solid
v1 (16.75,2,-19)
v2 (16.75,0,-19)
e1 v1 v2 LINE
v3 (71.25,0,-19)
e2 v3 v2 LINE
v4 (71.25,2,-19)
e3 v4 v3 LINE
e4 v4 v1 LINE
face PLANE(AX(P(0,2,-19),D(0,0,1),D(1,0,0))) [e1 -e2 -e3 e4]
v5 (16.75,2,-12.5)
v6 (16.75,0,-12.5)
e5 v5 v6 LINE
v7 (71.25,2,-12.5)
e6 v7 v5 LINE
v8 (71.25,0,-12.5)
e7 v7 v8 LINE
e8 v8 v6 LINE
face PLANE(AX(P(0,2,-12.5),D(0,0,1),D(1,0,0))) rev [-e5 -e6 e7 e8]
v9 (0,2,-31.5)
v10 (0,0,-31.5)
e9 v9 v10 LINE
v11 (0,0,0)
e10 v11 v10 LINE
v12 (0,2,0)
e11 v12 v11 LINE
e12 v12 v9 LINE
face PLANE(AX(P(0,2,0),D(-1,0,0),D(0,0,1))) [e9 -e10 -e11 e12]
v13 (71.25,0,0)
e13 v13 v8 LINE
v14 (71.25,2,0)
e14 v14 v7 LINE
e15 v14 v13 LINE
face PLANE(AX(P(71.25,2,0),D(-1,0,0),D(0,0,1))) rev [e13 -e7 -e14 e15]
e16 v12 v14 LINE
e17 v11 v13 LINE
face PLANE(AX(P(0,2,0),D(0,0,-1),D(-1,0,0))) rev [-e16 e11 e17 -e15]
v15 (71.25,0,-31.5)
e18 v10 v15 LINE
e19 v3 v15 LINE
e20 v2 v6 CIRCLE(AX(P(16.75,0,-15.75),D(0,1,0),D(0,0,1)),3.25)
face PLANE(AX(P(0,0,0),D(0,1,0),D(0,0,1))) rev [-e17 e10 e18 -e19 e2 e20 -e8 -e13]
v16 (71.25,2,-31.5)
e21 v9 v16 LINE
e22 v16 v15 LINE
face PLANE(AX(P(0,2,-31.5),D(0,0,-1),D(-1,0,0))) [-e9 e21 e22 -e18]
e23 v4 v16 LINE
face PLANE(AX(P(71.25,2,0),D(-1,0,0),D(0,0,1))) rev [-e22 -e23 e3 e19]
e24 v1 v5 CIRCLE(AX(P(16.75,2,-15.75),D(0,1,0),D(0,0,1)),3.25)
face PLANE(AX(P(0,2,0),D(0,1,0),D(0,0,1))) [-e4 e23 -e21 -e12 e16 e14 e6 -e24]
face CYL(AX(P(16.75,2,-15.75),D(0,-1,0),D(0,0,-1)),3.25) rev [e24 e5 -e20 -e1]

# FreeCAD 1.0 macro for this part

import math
import FreeCAD as App
import Part
import Sketcher
from FreeCAD import Vector
Q = App.Units.Quantity

doc = App.newDocument("Part")
body = doc.addObject("PartDesign::Body", "Body")

# Sketch on XZ plane
sketch1 = body.newObject("Sketcher::SketchObject", "Sketch")
sketch1.AttachmentSupport = (doc.getObject("XZ_Plane"), [""])
sketch1.MapMode = "FlatFace"
sketch1.addGeometry([
    Part.LineSegment(Vector(0, -31.5, 0), Vector(0, 0, 0)),  # 0
    Part.LineSegment(Vector(0, 0, 0), Vector(71.25, 0, 0)),  # 1
    Part.LineSegment(Vector(71.25, 0, 0), Vector(71.25, -12.5, 0)),  # 2
    Part.LineSegment(Vector(71.25, -12.5, 0), Vector(16.75, -12.5, 0)),  # 3
    Part.ArcOfCircle(Part.Circle(Vector(16.75, -15.75, 0), Vector(0, 0, 1), 3.25), math.radians(90), math.radians(270)),  # 4
    Part.LineSegment(Vector(16.75, -19, 0), Vector(71.25, -19, 0)),  # 5
    Part.LineSegment(Vector(71.25, -19, 0), Vector(71.25, -31.5, 0)),  # 6
    Part.LineSegment(Vector(71.25, -31.5, 0), Vector(0, -31.5, 0)),  # 7
], False)
sketch1.addConstraint([
    Sketcher.Constraint("Coincident", 0, 2, 1, 1),
    Sketcher.Constraint("Coincident", 1, 2, 2, 1),
    Sketcher.Constraint("Coincident", 2, 2, 3, 1),
    Sketcher.Constraint("Tangent", 3, 2, 4, 1),
    Sketcher.Constraint("Tangent", 4, 2, 5, 1),
    Sketcher.Constraint("Coincident", 5, 2, 6, 1),
    Sketcher.Constraint("Coincident", 6, 2, 7, 1),
    Sketcher.Constraint("Coincident", 7, 2, 0, 1),
    Sketcher.Constraint("Vertical", 0),
    Sketcher.Constraint("Horizontal", 1),
    Sketcher.Constraint("Vertical", 2),
    Sketcher.Constraint("Horizontal", 3),
    Sketcher.Constraint("Horizontal", 5),
    Sketcher.Constraint("Vertical", 6),
    Sketcher.Constraint("Horizontal", 7),
    Sketcher.Constraint("Coincident", 0, 2, -1, 1),
    Sketcher.Constraint("Vertical", 2, 2, 5, 2),
    Sketcher.Constraint("Equal", 2, 6),
    Sketcher.Constraint("Radius", 4, Q("3.25 mm")),
    Sketcher.Constraint("DistanceX", 3, 2, 3, 1, Q("54.5 mm")),
    Sketcher.Constraint("DistanceY", 0, 1, 0, 2, Q("31.5 mm")),
    Sketcher.Constraint("DistanceX", 1, 1, 1, 2, Q("71.25 mm")),
])
pad1 = body.newObject("PartDesign::Pad", "Pad")
pad1.Profile = sketch1
pad1.Length = 2
pad1.Reversed = True

doc.recompute()
